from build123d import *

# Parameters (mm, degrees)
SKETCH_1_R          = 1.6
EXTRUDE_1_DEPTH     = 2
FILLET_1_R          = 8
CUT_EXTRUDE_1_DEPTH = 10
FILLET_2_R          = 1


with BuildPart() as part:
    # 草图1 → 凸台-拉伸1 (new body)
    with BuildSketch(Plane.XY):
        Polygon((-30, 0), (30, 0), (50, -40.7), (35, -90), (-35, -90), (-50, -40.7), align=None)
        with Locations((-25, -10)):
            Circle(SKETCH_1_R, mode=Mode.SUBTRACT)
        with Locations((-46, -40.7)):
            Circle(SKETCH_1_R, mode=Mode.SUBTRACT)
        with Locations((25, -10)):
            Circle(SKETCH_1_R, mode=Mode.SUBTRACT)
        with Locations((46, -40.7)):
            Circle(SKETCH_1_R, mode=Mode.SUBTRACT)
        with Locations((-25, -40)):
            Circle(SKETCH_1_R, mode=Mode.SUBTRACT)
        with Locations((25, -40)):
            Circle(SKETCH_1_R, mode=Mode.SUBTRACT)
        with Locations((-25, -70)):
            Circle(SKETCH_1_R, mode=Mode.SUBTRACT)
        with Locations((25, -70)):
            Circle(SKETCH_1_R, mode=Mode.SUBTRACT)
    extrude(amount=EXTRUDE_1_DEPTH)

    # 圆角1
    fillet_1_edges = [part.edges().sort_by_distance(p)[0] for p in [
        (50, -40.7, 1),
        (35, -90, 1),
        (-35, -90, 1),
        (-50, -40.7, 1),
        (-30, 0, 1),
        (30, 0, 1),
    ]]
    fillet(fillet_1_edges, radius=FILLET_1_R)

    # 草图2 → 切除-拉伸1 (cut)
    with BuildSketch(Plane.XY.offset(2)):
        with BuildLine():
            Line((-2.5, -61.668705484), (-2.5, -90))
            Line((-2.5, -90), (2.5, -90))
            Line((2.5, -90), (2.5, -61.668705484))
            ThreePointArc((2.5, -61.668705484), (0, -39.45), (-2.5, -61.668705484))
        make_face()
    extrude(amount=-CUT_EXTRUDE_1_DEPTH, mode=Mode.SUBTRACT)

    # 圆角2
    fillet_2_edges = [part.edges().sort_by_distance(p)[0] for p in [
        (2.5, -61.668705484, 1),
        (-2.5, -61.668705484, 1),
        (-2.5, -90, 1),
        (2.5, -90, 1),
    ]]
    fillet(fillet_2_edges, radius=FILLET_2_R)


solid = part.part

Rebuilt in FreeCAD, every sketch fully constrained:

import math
import FreeCAD as App
import Part
import Sketcher
Q = App.Units.Quantity


def edges_at(feature, points):
    """Names of the edges that pass closest to the given points."""
    edges = feature.Shape.Edges
    near = lambda p: min(range(len(edges)), key=lambda i: edges[i].distToShape(Part.Vertex(*p))[0])
    return sorted({f"Edge{near(p) + 1}" for p in points})

doc = App.newDocument("Part")
params = doc.addObject("Spreadsheet::Sheet", "Params")
for row, (alias, value) in enumerate([
    ("sketch1_diameter", "3.2 mm"),
    ("sketch1_width", "60 mm"),
    ("sketch1_width2", "70 mm"),
    ("pad1_length", "2 mm"),
    ("fillet_radius", "8 mm"),
    ("sketch2_width", "5 mm"),
    ("sketch2_radius", "11.25 mm"),
    ("pocket1_length", "10 mm"),
    ("fillet2_radius", "1 mm"),
], start=1):
    params.set(f"A{row}", alias)
    params.set(f"B{row}", "=" + value)
    params.setAlias(f"B{row}", alias)

body = doc.addObject("PartDesign::Body", "Body")

# Sketch on XY plane
sketch1 = body.newObject("Sketcher::SketchObject", "Sketch")
sketch1.AttachmentSupport = (doc.getObject("XY_Plane"), [""])
sketch1.MapMode = "FlatFace"
sketch1.addGeometry([
    Part.LineSegment(App.Vector(30, 0, 0), App.Vector(-30, 0, 0)),  # 0
    Part.LineSegment(App.Vector(-30, 0, 0), App.Vector(-50, -40.7, 0)),  # 1
    Part.LineSegment(App.Vector(-50, -40.7, 0), App.Vector(-35, -90, 0)),  # 2
    Part.LineSegment(App.Vector(-35, -90, 0), App.Vector(35, -90, 0)),  # 3
    Part.LineSegment(App.Vector(35, -90, 0), App.Vector(50, -40.7, 0)),  # 4
    Part.LineSegment(App.Vector(50, -40.7, 0), App.Vector(30, 0, 0)),  # 5
    Part.Circle(App.Vector(25, -70, 0), App.Vector(0, 0, 1), 1.6),  # 6
    Part.Circle(App.Vector(46, -40.7, 0), App.Vector(0, 0, 1), 1.6),  # 7
    Part.Circle(App.Vector(25, -40, 0), App.Vector(0, 0, 1), 1.6),  # 8
    Part.Circle(App.Vector(-25, -70, 0), App.Vector(0, 0, 1), 1.6),  # 9
    Part.Circle(App.Vector(-25, -40, 0), App.Vector(0, 0, 1), 1.6),  # 10
    Part.Circle(App.Vector(-46, -40.7, 0), App.Vector(0, 0, 1), 1.6),  # 11
    Part.Circle(App.Vector(25, -10, 0), App.Vector(0, 0, 1), 1.6),  # 12
    Part.Circle(App.Vector(-25, -10, 0), App.Vector(0, 0, 1), 1.6),  # 13
], False)
sketch1.addConstraint([
    Sketcher.Constraint("Coincident", 0, 2, 1, 1),
    Sketcher.Constraint("Coincident", 1, 2, 2, 1),
    Sketcher.Constraint("Coincident", 2, 2, 3, 1),
    Sketcher.Constraint("Coincident", 3, 2, 4, 1),
    Sketcher.Constraint("Coincident", 4, 2, 5, 1),
    Sketcher.Constraint("Coincident", 5, 2, 0, 1),
    Sketcher.Constraint("Horizontal", 0),
    Sketcher.Constraint("Horizontal", 3),
    Sketcher.Constraint("Equal", 6, 7),
    Sketcher.Constraint("Equal", 7, 8),
    Sketcher.Constraint("Equal", 8, 9),
    Sketcher.Constraint("Equal", 9, 10),
    Sketcher.Constraint("Equal", 10, 11),
    Sketcher.Constraint("Equal", 11, 12),
    Sketcher.Constraint("Equal", 12, 13),
    Sketcher.Constraint("Symmetric", 0, 2, 5, 2, -1, 1),
    Sketcher.Constraint("Symmetric", 6, 3, 9, 3, -2),
    Sketcher.Constraint("Symmetric", 8, 3, 10, 3, -2),
    Sketcher.Constraint("Symmetric", 7, 3, 11, 3, -2),
    Sketcher.Constraint("Symmetric", 12, 3, 13, 3, -2),
    Sketcher.Constraint("Symmetric", 1, 2, 4, 2, -2),
    Sketcher.Constraint("Horizontal", 11, 3, 1, 2),
    Sketcher.Constraint("Vertical", 6, 3, 8, 3),
    Sketcher.Constraint("Vertical", 8, 3, 12, 3),
    Sketcher.Constraint("Equal", 2, 4),
    Sketcher.Constraint("Diameter", 6, Q("3.2 mm")),
    Sketcher.Constraint("DistanceX", 0, 2, 0, 1, Q("60 mm")),
    Sketcher.Constraint("DistanceX", 3, 1, 3, 2, Q("70 mm")),
    Sketcher.Constraint("DistanceX", -1, 1, 6, 3, Q("25 mm")),
    Sketcher.Constraint("DistanceY", 6, 3, -1, 1, Q("70 mm")),
    Sketcher.Constraint("DistanceX", -1, 1, 7, 3, Q("46 mm")),
    Sketcher.Constraint("DistanceY", 8, 3, -1, 1, Q("40 mm")),
    Sketcher.Constraint("DistanceY", 12, 3, -1, 1, Q("10 mm")),
    Sketcher.Constraint("DistanceX", 1, 2, -1, 1, Q("50 mm")),
    Sketcher.Constraint("DistanceY", 2, 2, -1, 1, Q("90 mm")),
    Sketcher.Constraint("DistanceY", 7, 3, -1, 1, Q("40.7 mm")),
])
sketch1.setExpression("Constraints[25]", "Params.sketch1_diameter")
sketch1.setExpression("Constraints[26]", "Params.sketch1_width")
sketch1.setExpression("Constraints[27]", "Params.sketch1_width2")
pad1 = body.newObject("PartDesign::Pad", "Pad")
pad1.Profile = sketch1
pad1.setExpression("Length", "Params.pad1_length")
doc.recompute()

fillet = body.newObject("PartDesign::Fillet", "Fillet")
fillet.Base = (pad1, edges_at(pad1, [
    (50, -40.7, 1),
    (35, -90, 1),
    (-35, -90, 1),
    (-50, -40.7, 1),
    (-30, 0, 1),
    (30, 0, 1),
]))
fillet.setExpression("Radius", "Params.fillet_radius")

# Sketch on XY plane
sketch2 = body.newObject("Sketcher::SketchObject", "Sketch001")
sketch2.AttachmentSupport = (doc.getObject("XY_Plane"), [""])
sketch2.MapMode = "FlatFace"
sketch2.AttachmentOffset = App.Placement(App.Vector(0, 0, 2), App.Rotation())
sketch2.addGeometry([
    Part.LineSegment(App.Vector(-2, -62, 0), App.Vector(-2, -90, 0)),
    Part.LineSegment(App.Vector(-2, -90, 0), App.Vector(2, -90, 0)),
    Part.LineSegment(App.Vector(2, -90, 0), App.Vector(2, -62, 0)),
    Part.ArcOfCircle(Part.Circle(App.Vector(0, -51, 0), App.Vector(0, 0, 1), 11), math.radians(-77), math.radians(257)),
], False)
sketch2.addConstraint([
    Sketcher.Constraint("Coincident", 0, 2, 1, 1),
    Sketcher.Constraint("Coincident", 1, 2, 2, 1),
    Sketcher.Constraint("Coincident", 2, 2, 3, 1),
    Sketcher.Constraint("Coincident", 3, 2, 0, 1),
    Sketcher.Constraint("Vertical", 0),
    Sketcher.Constraint("Horizontal", 1),
    Sketcher.Constraint("Vertical", 2),
    Sketcher.Constraint("Symmetric", 2, 2, 3, 2, -2),
    Sketcher.Constraint("DistanceX", 1, 1, 1, 2, Q("5 mm")),
    Sketcher.Constraint("Radius", 3, Q("11.25 mm")),
    Sketcher.Constraint("DistanceY", 0, 2, -1, 1, Q("90 mm")),
    Sketcher.Constraint("DistanceY", 3, 3, -1, 1, Q("50.7 mm")),
])
sketch2.setExpression("Constraints[8]", "Params.sketch2_width")
sketch2.setExpression("Constraints[9]", "Params.sketch2_radius")
pocket1 = body.newObject("PartDesign::Pocket", "Pocket")
pocket1.Profile = sketch2
pocket1.setExpression("Length", "Params.pocket1_length")
doc.recompute()

fillet2 = body.newObject("PartDesign::Fillet", "Fillet001")
fillet2.Base = (pocket1, edges_at(pocket1, [
    (2.5, -61.669, 1),
    (-2.5, -61.669, 1),
    (-2.5, -90, 1),
    (2.5, -90, 1),
]))
fillet2.setExpression("Radius", "Params.fillet2_radius")

doc.recompute()
